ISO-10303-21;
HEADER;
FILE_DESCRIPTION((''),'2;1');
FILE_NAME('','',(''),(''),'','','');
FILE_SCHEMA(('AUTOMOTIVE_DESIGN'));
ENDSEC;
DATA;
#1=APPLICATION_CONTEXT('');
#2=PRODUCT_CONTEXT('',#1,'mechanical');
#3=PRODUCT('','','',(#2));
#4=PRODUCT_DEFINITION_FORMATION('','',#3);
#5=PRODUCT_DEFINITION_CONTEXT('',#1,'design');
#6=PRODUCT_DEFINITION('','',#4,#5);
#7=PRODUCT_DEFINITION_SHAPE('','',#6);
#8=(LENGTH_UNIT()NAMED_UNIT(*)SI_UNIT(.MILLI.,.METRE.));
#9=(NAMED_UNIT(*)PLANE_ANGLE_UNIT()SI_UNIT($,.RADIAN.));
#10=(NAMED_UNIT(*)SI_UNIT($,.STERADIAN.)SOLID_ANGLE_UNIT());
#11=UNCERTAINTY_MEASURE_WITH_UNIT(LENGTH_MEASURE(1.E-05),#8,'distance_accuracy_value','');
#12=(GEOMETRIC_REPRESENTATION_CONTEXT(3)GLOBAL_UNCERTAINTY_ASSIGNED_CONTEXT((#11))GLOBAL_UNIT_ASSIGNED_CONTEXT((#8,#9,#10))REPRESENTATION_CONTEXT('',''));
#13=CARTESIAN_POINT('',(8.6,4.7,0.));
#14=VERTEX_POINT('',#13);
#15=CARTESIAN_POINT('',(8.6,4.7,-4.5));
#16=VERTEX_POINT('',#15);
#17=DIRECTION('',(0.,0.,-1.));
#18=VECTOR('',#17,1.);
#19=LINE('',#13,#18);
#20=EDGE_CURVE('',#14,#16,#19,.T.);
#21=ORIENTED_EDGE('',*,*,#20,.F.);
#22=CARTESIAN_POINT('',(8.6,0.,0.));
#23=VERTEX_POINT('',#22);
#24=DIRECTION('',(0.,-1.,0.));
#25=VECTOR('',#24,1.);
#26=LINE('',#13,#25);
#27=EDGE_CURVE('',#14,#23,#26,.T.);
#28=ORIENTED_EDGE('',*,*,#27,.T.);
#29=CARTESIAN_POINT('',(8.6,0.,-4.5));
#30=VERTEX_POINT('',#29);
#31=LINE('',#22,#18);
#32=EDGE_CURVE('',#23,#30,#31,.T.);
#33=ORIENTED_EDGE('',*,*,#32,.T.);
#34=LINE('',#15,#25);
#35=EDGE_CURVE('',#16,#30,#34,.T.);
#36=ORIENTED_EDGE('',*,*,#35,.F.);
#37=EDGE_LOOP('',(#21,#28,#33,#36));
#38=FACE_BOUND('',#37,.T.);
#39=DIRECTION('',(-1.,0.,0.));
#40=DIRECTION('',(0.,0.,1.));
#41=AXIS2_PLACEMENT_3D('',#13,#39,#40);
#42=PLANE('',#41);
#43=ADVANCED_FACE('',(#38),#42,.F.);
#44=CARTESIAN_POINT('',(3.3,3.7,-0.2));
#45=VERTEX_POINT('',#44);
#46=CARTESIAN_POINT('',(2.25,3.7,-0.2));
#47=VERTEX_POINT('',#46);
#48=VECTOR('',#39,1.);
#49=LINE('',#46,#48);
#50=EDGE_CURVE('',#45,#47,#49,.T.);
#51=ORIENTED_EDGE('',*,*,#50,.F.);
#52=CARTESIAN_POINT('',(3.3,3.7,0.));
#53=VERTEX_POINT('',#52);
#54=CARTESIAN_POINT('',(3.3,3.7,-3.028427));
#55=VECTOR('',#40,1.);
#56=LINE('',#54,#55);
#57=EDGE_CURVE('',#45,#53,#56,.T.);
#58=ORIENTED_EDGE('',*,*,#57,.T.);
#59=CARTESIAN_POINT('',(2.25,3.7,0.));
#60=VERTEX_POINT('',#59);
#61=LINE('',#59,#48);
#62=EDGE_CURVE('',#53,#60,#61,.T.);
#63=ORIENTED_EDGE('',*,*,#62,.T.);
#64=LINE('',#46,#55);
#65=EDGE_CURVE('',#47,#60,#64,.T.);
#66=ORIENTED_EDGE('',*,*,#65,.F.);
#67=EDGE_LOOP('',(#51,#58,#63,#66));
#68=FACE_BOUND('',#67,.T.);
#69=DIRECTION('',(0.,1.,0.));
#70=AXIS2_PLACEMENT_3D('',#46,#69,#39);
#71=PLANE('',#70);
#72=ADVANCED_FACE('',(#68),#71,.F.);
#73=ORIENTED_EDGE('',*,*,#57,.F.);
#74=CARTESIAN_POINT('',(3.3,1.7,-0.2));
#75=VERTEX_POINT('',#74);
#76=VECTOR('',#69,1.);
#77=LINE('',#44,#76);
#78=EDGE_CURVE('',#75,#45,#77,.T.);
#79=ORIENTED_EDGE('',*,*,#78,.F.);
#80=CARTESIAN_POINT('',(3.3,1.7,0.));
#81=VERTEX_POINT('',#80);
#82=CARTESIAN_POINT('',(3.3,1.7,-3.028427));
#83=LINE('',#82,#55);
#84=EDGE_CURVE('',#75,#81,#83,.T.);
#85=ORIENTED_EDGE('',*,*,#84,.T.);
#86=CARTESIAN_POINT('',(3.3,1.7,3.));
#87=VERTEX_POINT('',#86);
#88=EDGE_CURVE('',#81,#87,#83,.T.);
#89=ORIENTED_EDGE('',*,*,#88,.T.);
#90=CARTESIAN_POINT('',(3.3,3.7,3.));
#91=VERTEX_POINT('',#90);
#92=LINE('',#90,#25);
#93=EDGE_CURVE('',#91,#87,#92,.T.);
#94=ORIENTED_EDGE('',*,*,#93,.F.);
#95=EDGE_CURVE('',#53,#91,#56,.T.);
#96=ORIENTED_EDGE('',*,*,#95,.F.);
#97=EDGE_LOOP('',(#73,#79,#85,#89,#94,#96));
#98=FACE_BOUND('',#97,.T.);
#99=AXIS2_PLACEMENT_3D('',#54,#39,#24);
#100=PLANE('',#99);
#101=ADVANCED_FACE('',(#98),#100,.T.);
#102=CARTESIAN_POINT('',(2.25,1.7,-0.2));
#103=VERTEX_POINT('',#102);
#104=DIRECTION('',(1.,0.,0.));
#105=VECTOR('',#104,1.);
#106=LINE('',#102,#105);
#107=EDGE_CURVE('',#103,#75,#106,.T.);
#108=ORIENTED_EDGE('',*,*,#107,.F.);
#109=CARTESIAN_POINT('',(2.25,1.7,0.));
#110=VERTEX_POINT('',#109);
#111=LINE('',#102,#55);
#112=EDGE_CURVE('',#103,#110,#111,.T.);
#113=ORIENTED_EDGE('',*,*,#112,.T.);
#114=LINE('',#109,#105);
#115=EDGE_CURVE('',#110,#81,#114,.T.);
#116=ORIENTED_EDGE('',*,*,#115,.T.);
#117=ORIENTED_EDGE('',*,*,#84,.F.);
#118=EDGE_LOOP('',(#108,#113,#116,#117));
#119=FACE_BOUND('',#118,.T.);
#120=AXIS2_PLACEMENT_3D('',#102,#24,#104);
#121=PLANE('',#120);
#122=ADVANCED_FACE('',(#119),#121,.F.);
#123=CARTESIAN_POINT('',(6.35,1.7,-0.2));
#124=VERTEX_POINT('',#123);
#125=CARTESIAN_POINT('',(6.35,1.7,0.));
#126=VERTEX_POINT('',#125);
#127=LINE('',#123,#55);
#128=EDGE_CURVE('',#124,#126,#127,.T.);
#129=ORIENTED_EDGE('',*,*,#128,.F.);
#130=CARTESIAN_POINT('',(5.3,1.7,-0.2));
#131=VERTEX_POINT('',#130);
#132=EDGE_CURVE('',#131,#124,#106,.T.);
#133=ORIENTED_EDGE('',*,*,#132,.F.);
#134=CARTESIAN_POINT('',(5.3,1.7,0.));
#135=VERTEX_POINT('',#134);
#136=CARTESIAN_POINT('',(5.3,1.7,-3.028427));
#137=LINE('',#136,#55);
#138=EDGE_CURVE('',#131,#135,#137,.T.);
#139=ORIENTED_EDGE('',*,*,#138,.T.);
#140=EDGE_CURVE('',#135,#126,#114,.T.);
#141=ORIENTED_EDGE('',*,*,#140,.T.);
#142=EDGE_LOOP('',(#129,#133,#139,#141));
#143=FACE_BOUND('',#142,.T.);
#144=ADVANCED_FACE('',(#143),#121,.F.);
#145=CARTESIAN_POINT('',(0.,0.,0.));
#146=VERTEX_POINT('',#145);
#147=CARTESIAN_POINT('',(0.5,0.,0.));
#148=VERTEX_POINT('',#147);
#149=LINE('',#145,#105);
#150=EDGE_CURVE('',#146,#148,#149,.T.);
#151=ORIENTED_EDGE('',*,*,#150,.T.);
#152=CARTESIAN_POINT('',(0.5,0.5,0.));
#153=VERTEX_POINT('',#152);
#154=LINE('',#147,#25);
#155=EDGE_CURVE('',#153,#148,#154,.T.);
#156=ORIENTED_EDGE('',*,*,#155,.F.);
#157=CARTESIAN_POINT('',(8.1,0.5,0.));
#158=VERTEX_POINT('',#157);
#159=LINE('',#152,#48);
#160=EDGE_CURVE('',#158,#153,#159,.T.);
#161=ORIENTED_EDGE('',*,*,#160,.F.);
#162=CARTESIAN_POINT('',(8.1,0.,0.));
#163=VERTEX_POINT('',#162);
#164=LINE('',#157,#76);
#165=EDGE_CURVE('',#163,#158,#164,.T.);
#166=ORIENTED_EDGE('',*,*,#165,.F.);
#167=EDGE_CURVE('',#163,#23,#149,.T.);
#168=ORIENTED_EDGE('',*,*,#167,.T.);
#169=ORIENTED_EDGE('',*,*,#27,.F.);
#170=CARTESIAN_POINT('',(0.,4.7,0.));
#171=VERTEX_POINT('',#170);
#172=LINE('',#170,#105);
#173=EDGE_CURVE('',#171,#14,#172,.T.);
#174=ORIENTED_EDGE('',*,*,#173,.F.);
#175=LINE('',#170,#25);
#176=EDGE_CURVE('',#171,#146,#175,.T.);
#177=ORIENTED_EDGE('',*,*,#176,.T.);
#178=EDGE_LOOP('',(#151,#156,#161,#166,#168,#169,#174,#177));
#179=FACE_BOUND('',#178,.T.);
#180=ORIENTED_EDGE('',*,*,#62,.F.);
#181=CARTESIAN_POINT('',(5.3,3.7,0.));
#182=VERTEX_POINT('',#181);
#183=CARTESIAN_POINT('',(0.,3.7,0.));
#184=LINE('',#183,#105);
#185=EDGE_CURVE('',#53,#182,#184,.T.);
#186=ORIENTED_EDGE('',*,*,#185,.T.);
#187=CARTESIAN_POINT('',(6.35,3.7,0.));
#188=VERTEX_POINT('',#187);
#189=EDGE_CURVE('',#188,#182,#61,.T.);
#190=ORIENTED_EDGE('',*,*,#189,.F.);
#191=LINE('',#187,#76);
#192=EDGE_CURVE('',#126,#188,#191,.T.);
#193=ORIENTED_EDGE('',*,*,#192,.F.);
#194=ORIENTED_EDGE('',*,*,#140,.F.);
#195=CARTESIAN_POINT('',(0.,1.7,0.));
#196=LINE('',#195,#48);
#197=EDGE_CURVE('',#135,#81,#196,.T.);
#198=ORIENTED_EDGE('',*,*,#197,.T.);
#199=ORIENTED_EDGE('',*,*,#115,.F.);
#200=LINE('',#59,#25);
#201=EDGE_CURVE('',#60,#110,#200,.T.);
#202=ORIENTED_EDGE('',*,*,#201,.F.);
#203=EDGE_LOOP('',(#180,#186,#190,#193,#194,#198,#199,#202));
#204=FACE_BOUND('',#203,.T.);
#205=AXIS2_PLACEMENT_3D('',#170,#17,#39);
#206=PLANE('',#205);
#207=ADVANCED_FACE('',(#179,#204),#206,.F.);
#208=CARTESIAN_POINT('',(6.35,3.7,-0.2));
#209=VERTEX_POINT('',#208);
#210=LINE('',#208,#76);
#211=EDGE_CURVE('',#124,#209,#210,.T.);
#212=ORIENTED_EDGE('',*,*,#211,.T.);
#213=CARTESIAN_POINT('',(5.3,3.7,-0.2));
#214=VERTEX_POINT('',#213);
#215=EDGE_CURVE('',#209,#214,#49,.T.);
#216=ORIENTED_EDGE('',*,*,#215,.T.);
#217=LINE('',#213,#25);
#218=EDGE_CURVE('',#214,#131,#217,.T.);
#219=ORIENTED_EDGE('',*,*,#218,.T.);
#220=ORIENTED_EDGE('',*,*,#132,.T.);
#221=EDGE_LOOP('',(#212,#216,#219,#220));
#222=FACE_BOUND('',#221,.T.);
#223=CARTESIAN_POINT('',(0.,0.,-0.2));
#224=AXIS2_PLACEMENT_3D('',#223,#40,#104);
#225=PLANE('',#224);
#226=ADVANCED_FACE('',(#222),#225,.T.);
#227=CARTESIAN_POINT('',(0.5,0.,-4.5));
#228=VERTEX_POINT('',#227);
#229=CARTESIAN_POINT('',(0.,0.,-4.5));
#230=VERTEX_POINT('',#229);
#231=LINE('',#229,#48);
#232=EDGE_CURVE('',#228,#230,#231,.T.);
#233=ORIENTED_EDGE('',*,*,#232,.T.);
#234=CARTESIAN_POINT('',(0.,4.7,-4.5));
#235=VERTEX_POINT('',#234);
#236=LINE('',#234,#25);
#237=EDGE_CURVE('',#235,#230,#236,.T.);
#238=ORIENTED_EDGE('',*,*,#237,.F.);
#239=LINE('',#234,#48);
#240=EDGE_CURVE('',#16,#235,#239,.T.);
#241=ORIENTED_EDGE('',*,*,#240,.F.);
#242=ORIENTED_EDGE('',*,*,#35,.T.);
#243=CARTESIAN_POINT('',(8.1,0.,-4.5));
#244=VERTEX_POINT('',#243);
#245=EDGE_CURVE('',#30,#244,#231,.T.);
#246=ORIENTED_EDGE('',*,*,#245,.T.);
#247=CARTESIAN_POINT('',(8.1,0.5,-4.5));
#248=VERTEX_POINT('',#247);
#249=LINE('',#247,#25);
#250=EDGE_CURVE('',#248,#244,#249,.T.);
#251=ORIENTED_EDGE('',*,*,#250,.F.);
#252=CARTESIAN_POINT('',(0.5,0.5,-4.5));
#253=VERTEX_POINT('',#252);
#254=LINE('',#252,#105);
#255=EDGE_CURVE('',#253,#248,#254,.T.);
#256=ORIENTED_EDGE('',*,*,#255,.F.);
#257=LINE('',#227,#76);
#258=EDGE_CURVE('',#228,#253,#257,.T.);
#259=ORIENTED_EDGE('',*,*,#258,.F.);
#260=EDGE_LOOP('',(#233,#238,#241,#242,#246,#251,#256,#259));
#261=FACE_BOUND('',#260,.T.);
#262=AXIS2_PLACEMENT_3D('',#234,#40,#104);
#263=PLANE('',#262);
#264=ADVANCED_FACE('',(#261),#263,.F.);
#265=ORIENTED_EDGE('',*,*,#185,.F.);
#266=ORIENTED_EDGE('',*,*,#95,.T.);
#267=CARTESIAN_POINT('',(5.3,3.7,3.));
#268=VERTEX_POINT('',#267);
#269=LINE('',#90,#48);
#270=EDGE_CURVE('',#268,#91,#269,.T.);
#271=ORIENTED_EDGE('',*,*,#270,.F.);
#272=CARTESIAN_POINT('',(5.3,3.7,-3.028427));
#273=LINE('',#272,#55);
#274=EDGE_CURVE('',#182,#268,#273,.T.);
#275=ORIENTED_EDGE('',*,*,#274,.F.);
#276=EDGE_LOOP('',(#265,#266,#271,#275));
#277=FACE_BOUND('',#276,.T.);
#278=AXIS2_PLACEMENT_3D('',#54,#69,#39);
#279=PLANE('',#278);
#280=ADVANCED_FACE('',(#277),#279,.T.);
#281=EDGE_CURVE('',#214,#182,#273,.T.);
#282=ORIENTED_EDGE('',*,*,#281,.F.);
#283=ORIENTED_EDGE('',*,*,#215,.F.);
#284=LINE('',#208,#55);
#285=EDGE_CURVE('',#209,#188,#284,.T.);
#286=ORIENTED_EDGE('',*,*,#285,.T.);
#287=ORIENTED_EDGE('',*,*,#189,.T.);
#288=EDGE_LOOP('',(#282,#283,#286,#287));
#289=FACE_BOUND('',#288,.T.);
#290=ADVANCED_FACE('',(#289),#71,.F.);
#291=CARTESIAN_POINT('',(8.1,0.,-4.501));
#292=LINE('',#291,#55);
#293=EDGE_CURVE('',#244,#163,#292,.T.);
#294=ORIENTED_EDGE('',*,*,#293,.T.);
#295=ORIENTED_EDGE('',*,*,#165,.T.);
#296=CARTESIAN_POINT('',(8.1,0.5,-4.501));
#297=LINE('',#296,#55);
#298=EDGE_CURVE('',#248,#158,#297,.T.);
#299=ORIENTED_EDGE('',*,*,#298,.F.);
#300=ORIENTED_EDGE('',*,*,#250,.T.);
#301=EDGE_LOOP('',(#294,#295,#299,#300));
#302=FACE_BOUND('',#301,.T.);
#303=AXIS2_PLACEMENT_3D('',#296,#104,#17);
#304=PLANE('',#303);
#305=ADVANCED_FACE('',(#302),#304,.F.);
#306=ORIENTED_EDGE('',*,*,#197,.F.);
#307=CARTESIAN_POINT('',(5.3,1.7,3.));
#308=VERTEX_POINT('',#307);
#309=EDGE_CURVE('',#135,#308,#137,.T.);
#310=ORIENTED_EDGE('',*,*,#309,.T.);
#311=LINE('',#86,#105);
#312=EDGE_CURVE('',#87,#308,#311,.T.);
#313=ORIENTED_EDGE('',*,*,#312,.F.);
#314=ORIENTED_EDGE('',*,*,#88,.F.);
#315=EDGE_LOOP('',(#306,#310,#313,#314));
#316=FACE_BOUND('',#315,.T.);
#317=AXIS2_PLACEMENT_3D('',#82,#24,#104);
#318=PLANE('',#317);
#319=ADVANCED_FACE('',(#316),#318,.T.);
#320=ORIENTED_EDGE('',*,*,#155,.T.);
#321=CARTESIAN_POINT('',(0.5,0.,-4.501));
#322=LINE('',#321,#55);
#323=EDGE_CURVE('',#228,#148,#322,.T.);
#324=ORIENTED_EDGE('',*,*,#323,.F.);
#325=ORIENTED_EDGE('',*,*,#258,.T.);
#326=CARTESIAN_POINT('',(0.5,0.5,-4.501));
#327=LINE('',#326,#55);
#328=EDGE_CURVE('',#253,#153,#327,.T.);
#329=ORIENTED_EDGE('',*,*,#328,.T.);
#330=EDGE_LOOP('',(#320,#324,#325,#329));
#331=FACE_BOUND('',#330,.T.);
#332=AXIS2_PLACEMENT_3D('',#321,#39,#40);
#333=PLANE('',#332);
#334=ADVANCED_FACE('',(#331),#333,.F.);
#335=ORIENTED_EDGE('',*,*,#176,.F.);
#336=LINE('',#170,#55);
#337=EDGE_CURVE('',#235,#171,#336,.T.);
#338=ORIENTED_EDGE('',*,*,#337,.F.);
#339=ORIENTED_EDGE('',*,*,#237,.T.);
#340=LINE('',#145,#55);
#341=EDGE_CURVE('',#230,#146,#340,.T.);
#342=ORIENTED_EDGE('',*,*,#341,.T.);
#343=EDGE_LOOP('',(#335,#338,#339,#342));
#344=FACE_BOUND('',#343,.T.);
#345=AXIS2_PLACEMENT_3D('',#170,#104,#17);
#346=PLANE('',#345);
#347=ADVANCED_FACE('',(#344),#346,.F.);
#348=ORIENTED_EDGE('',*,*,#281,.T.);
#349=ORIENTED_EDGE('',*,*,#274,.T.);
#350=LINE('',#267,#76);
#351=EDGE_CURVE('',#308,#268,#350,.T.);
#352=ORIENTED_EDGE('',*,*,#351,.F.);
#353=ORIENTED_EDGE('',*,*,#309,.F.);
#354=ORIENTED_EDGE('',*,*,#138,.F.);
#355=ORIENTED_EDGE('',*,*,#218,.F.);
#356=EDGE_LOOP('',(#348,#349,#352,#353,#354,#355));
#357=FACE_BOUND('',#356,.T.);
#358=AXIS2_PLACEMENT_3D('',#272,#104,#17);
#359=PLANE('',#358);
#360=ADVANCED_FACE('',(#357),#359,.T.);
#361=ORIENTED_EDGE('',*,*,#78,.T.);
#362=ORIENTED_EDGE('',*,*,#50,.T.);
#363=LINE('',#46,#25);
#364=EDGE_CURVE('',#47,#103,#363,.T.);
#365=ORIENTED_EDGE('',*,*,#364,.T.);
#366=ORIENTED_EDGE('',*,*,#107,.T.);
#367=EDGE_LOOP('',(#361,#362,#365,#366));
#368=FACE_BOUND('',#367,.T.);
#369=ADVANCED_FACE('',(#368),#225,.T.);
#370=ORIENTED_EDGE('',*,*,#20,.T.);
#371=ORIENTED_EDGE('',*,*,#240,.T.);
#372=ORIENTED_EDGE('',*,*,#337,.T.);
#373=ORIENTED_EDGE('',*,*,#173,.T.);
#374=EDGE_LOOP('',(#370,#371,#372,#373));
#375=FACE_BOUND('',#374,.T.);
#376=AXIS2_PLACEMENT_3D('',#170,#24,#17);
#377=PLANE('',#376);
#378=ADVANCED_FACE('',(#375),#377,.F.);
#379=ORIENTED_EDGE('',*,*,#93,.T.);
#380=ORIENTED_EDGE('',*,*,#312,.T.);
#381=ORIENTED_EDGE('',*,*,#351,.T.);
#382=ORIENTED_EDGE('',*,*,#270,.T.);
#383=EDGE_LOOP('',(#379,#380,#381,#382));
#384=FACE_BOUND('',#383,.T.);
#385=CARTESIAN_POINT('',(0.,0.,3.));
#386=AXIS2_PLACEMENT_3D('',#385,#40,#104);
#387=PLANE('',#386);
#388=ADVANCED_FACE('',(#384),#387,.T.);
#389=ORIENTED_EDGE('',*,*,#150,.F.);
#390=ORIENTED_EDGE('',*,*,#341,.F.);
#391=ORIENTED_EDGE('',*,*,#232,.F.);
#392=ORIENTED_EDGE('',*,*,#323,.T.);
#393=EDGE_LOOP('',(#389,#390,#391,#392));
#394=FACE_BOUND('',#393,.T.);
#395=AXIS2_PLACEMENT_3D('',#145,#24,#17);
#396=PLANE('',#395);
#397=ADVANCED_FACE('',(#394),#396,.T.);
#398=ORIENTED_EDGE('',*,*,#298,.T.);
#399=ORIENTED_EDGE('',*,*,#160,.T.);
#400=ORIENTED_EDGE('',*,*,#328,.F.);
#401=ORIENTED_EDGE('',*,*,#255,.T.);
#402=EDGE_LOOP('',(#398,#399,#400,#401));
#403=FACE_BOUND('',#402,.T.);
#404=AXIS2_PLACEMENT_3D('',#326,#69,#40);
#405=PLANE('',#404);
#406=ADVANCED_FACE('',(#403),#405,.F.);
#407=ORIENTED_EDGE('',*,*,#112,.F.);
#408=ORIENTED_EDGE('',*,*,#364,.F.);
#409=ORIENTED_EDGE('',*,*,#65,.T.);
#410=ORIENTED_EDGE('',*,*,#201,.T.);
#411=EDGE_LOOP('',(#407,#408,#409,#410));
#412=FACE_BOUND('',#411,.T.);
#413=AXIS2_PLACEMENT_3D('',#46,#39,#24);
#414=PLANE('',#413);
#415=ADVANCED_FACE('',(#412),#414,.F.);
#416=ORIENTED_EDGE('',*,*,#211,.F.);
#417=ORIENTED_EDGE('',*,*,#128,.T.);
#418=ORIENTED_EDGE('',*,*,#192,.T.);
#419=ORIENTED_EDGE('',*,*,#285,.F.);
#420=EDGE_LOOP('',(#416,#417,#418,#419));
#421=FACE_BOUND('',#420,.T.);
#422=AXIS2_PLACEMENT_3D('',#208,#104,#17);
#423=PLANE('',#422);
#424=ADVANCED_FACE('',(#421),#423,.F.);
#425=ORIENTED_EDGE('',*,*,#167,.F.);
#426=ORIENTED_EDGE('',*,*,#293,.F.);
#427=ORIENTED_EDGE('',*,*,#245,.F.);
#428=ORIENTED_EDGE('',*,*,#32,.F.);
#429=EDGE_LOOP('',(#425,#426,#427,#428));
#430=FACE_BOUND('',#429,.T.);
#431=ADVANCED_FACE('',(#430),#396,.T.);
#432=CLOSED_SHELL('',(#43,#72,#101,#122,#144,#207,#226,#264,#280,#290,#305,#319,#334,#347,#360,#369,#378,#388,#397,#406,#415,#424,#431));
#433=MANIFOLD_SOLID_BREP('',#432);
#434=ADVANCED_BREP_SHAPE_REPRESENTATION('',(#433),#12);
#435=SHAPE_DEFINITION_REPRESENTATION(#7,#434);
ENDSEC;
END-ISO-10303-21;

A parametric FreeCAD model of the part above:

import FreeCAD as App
import Part
import Sketcher
Q = App.Units.Quantity

doc = App.newDocument("Part")
body = doc.addObject("PartDesign::Body", "Body")

sketch1 = body.newObject("Sketcher::SketchObject", "Sketch")
sketch1.AttachmentSupport = (doc.getObject("XZ_Plane"), [""])
sketch1.MapMode = "FlatFace"
sketch1.addGeometry(Part.LineSegment(App.Vector(0, -4.5, 0), App.Vector(0, 0, 0)), False)
sketch1.addGeometry(Part.LineSegment(App.Vector(0, 0, 0), App.Vector(8.6, 0, 0)), False)
sketch1.addGeometry(Part.LineSegment(App.Vector(8.6, 0, 0), App.Vector(8.6, -4.5, 0)), False)
sketch1.addGeometry(Part.LineSegment(App.Vector(8.6, -4.5, 0), App.Vector(0, -4.5, 0)), False)
sketch1.addConstraint(Sketcher.Constraint("Coincident", 0, 2, 1, 1))
sketch1.addConstraint(Sketcher.Constraint("Coincident", 1, 2, 2, 1))
sketch1.addConstraint(Sketcher.Constraint("Coincident", 2, 2, 3, 1))
sketch1.addConstraint(Sketcher.Constraint("Coincident", 3, 2, 0, 1))
sketch1.addConstraint(Sketcher.Constraint("Vertical", 0))
sketch1.addConstraint(Sketcher.Constraint("Horizontal", 1))
sketch1.addConstraint(Sketcher.Constraint("Vertical", 2))
sketch1.addConstraint(Sketcher.Constraint("Horizontal", 3))
sketch1.addConstraint(Sketcher.Constraint("Coincident", 0, 2, -1, 1))
sketch1.addConstraint(Sketcher.Constraint("DistanceX", 1, 1, 1, 2, Q("8.6 mm")))
sketch1.addConstraint(Sketcher.Constraint("DistanceY", 0, 1, 0, 2, Q("4.5 mm")))
pad1 = body.newObject("PartDesign::Pad", "Pad")
pad1.Profile = sketch1
pad1.Length = 4.7
pad1.Reversed = True

sketch2 = body.newObject("Sketcher::SketchObject", "Sketch001")
sketch2.AttachmentSupport = (doc.getObject("XY_Plane"), [""])
sketch2.MapMode = "FlatFace"
sketch2.addGeometry(Part.LineSegment(App.Vector(2.2, 3.7, 0), App.Vector(2.2, 1.7, 0)), False)
sketch2.addGeometry(Part.LineSegment(App.Vector(2.2, 1.7, 0), App.Vector(6.3, 1.7, 0)), False)
sketch2.addGeometry(Part.LineSegment(App.Vector(6.3, 1.7, 0), App.Vector(6.3, 3.7, 0)), False)
sketch2.addGeometry(Part.LineSegment(App.Vector(6.3, 3.7, 0), App.Vector(2.2, 3.7, 0)), False)
sketch2.addConstraint(Sketcher.Constraint("Coincident", 0, 2, 1, 1))
sketch2.addConstraint(Sketcher.Constraint("Coincident", 1, 2, 2, 1))
sketch2.addConstraint(Sketcher.Constraint("Coincident", 2, 2, 3, 1))
sketch2.addConstraint(Sketcher.Constraint("Coincident", 3, 2, 0, 1))
sketch2.addConstraint(Sketcher.Constraint("Vertical", 0))
sketch2.addConstraint(Sketcher.Constraint("Horizontal", 1))
sketch2.addConstraint(Sketcher.Constraint("Vertical", 2))
sketch2.addConstraint(Sketcher.Constraint("Horizontal", 3))
sketch2.addConstraint(Sketcher.Constraint("DistanceY", 0, 2, 0, 1, Q("2 mm")))
sketch2.addConstraint(Sketcher.Constraint("DistanceX", 1, 1, 1, 2, Q("4.1 mm")))
sketch2.addConstraint(Sketcher.Constraint("DistanceY", -1, 1, 0, 2, Q("1.7 mm")))
sketch2.addConstraint(Sketcher.Constraint("DistanceX", -1, 1, 0, 2, Q("2.25 mm")))
pocket1 = body.newObject("PartDesign::Pocket", "Pocket")
pocket1.Profile = sketch2
pocket1.Length = 0.2

sketch3 = body.newObject("Sketcher::SketchObject", "Sketch002")
sketch3.AttachmentSupport = (doc.getObject("XY_Plane"), [""])
sketch3.MapMode = "FlatFace"
sketch3.addGeometry(Part.LineSegment(App.Vector(0.5, 0.5, 0), App.Vector(0.5, 0, 0)), False)
sketch3.addGeometry(Part.LineSegment(App.Vector(0.5, 0, 0), App.Vector(8.1, 0, 0)), False)
sketch3.addGeometry(Part.LineSegment(App.Vector(8.1, 0, 0), App.Vector(8.1, 0.5, 0)), False)
sketch3.addGeometry(Part.LineSegment(App.Vector(8.1, 0.5, 0), App.Vector(0.5, 0.5, 0)), False)
sketch3.addConstraint(Sketcher.Constraint("Coincident", 0, 2, 1, 1))
sketch3.addConstraint(Sketcher.Constraint("Coincident", 1, 2, 2, 1))
sketch3.addConstraint(Sketcher.Constraint("Coincident", 2, 2, 3, 1))
sketch3.addConstraint(Sketcher.Constraint("Coincident", 3, 2, 0, 1))
sketch3.addConstraint(Sketcher.Constraint("Vertical", 0))
sketch3.addConstraint(Sketcher.Constraint("Horizontal", 1))
sketch3.addConstraint(Sketcher.Constraint("Vertical", 2))
sketch3.addConstraint(Sketcher.Constraint("Horizontal", 3))
sketch3.addConstraint(Sketcher.Constraint("PointOnObject", 0, 2, -1))
sketch3.addConstraint(Sketcher.Constraint("DistanceX", 1, 1, 1, 2, Q("7.6 mm")))
sketch3.addConstraint(Sketcher.Constraint("DistanceY", 0, 2, 0, 1, Q("0.5 mm")))
sketch3.addConstraint(Sketcher.Constraint("DistanceX", -1, 1, 0, 2, Q("0.5 mm")))
pocket2 = body.newObject("PartDesign::Pocket", "Pocket001")
pocket2.Profile = sketch3
pocket2.Type = "UpToFirst"

sketch4 = body.newObject("Sketcher::SketchObject", "Sketch003")
sketch4.AttachmentSupport = (doc.getObject("XY_Plane"), [""])
sketch4.MapMode = "FlatFace"
sketch4.addGeometry(Part.LineSegment(App.Vector(3.3, 3.7, 0), App.Vector(3.3, 1.7, 0)), False)
sketch4.addGeometry(Part.LineSegment(App.Vector(3.3, 1.7, 0), App.Vector(5.3, 1.7, 0)), False)
sketch4.addGeometry(Part.LineSegment(App.Vector(5.3, 1.7, 0), App.Vector(5.3, 3.7, 0)), False)
sketch4.addGeometry(Part.LineSegment(App.Vector(5.3, 3.7, 0), App.Vector(3.3, 3.7, 0)), False)
sketch4.addConstraint(Sketcher.Constraint("Coincident", 0, 2, 1, 1))
sketch4.addConstraint(Sketcher.Constraint("Coincident", 1, 2, 2, 1))
sketch4.addConstraint(Sketcher.Constraint("Coincident", 2, 2, 3, 1))
sketch4.addConstraint(Sketcher.Constraint("Coincident", 3, 2, 0, 1))
sketch4.addConstraint(Sketcher.Constraint("Vertical", 0))
sketch4.addConstraint(Sketcher.Constraint("Horizontal", 1))
sketch4.addConstraint(Sketcher.Constraint("Vertical", 2))
sketch4.addConstraint(Sketcher.Constraint("Horizontal", 3))
sketch4.addConstraint(Sketcher.Constraint("Equal", 3, 0))
sketch4.addConstraint(Sketcher.Constraint("DistanceX", 1, 1, 1, 2, Q("2 mm")))
sketch4.addConstraint(Sketcher.Constraint("DistanceX", -1, 1, 0, 2, Q("3.3 mm")))
sketch4.addConstraint(Sketcher.Constraint("DistanceY", -1, 1, 0, 2, Q("1.7 mm")))
pad2 = body.newObject("PartDesign::Pad", "Pad001")
pad2.Profile = sketch4
pad2.Type = "TwoLengths"
pad2.Length = 3
pad2.Length2 = 0.2

doc.recompute()
